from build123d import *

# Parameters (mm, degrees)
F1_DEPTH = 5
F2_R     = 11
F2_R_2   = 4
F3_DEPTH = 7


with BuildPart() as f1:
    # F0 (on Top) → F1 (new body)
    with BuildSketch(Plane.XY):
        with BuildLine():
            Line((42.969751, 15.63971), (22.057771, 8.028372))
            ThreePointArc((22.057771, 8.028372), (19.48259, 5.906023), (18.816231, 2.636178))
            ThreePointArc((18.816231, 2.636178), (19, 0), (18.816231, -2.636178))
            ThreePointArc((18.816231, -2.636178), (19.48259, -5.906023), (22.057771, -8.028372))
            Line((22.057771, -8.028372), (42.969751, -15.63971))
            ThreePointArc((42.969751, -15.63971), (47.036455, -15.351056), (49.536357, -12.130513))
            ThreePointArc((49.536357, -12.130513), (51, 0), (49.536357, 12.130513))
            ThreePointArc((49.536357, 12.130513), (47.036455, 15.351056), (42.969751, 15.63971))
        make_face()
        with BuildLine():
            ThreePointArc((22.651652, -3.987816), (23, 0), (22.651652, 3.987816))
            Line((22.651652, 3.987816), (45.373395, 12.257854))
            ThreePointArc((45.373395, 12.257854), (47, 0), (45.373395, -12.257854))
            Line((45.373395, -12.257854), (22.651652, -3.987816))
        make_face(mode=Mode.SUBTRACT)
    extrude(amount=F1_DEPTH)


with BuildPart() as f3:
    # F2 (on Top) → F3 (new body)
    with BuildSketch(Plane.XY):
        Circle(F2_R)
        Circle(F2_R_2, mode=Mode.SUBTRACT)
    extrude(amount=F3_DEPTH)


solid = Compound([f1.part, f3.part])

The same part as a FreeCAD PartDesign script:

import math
import FreeCAD as App
import Part
import Sketcher
from FreeCAD import Vector

doc = App.newDocument("Part")
body = doc.addObject("PartDesign::Body", "Body")

sketch1 = body.newObject("Sketcher::SketchObject", "Sketch")
sketch1.AttachmentSupport = (doc.getObject("XY_Plane"), [""])
sketch1.MapMode = "FlatFace"
sketch1.addGeometry(Part.LineSegment(Vector(42.969751, 15.63971, 0), Vector(22.057771, 8.028372, 0)), False)
sketch1.addGeometry(Part.ArcOfCircle(Part.Circle(Vector(23.767872, 3.329908, 0), Vector(0, 0, 1), 5.000001), math.radians(109.999997), math.radians(187.975289)), False)
sketch1.addGeometry(Part.ArcOfCircle(Part.Circle(Vector(0.000045, 0, 0), Vector(0, 0, 1), 18.999955), math.radians(-7.97532), math.radians(7.97532)), False)
sketch1.addGeometry(Part.ArcOfCircle(Part.Circle(Vector(23.767872, -3.329908, 0), Vector(0, 0, 1), 5.000001), math.radians(172.024711), math.radians(250.000003)), False)
sketch1.addGeometry(Part.LineSegment(Vector(22.057771, -8.028372, 0), Vector(42.969751, -15.63971, 0)), False)
sketch1.addGeometry(Part.ArcOfCircle(Part.Circle(Vector(44.679851, -10.941246, 0), Vector(0, 0, 1), 5.000001), math.radians(-109.99999), math.radians(-13.759878)), False)
sketch1.addGeometry(Part.ArcOfCircle(Part.Circle(Vector(-0.000004, 0, 0), Vector(0, 0, 1), 51.000004), math.radians(-13.759868), math.radians(13.759868)), False)
sketch1.addGeometry(Part.ArcOfCircle(Part.Circle(Vector(44.679851, 10.941246, 0), Vector(0, 0, 1), 5.000001), math.radians(13.759878), math.radians(109.99999)), False)
sketch1.addGeometry(Part.LineSegment(Vector(45.373395, -12.257854, 0), Vector(22.651652, -3.987816, 0)), False)
sketch1.addGeometry(Part.ArcOfCircle(Part.Circle(Vector(-0.000021, 0, 0), Vector(0, 0, 1), 23.000021), math.radians(-9.984581), math.radians(9.984581)), False)
sketch1.addGeometry(Part.LineSegment(Vector(22.651652, 3.987816, 0), Vector(45.373395, 12.257854, 0)), False)
sketch1.addGeometry(Part.ArcOfCircle(Part.Circle(Vector(0.000013, 0, 0), Vector(0, 0, 1), 46.999987), math.radians(-15.117862), math.radians(15.117862)), False)
sketch1.addConstraint(Sketcher.Constraint("Coincident", 0, 2, 1, 1))
sketch1.addConstraint(Sketcher.Constraint("Coincident", 1, 2, 2, 2))
sketch1.addConstraint(Sketcher.Constraint("Coincident", 2, 1, 3, 1))
sketch1.addConstraint(Sketcher.Constraint("Coincident", 3, 2, 4, 1))
sketch1.addConstraint(Sketcher.Constraint("Coincident", 4, 2, 5, 1))
sketch1.addConstraint(Sketcher.Constraint("Coincident", 5, 2, 6, 1))
sketch1.addConstraint(Sketcher.Constraint("Coincident", 6, 2, 7, 1))
sketch1.addConstraint(Sketcher.Constraint("Coincident", 7, 2, 0, 1))
sketch1.addConstraint(Sketcher.Constraint("Coincident", 8, 2, 9, 1))
sketch1.addConstraint(Sketcher.Constraint("Coincident", 9, 2, 10, 1))
sketch1.addConstraint(Sketcher.Constraint("Coincident", 10, 2, 11, 2))
sketch1.addConstraint(Sketcher.Constraint("Coincident", 11, 1, 8, 1))
sketch1.addConstraint(Sketcher.Constraint("Coincident", 6, 3, -1, 1))
sketch1.addConstraint(Sketcher.Constraint("PointOnObject", 2, 3, -1))
sketch1.addConstraint(Sketcher.Constraint("PointOnObject", 9, 3, -1))
sketch1.addConstraint(Sketcher.Constraint("PointOnObject", 11, 3, -1))
sketch1.addConstraint(Sketcher.Constraint("Radius", 1, 5.000001))
sketch1.addConstraint(Sketcher.Constraint("Radius", 3, 5.000001))
sketch1.addConstraint(Sketcher.Constraint("Radius", 5, 5.000001))
sketch1.addConstraint(Sketcher.Constraint("Radius", 7, 5.000001))
sketch1.addConstraint(Sketcher.Constraint("Radius", 9, 23.000021))
sketch1.addConstraint(Sketcher.Constraint("Radius", 2, 18.999955))
sketch1.addConstraint(Sketcher.Constraint("Radius", 6, 51.000004))
sketch1.addConstraint(Sketcher.Constraint("Radius", 11, 46.999987))
sketch1.addConstraint(Sketcher.Constraint("DistanceX", 0, 2, 1, 3, 1.710101))
sketch1.addConstraint(Sketcher.Constraint("DistanceX", 0, 2, 3, 3, 1.710101))
sketch1.addConstraint(Sketcher.Constraint("DistanceX", 3, 2, 3, 3, 1.710101))
sketch1.addConstraint(Sketcher.Constraint("DistanceX", 4, 2, 5, 3, 1.7101))
sketch1.addConstraint(Sketcher.Constraint("DistanceY", 4, 2, 3, 3, 12.309802))
sketch1.addConstraint(Sketcher.Constraint("DistanceX", 4, 2, 7, 3, 1.7101))
sketch1.addConstraint(Sketcher.Constraint("DistanceX", 7, 2, 7, 3, 1.7101))
sketch1.addConstraint(Sketcher.Constraint("DistanceY", 5, 3, 10, 2, 23.1991))
sketch1.addConstraint(Sketcher.Constraint("DistanceY", 11, 1, 7, 3, 23.1991))
sketch1.addConstraint(Sketcher.Constraint("DistanceX", -1, 1, 1, 3, 23.767872))
sketch1.addConstraint(Sketcher.Constraint("DistanceY", -1, 1, 1, 3, 3.329908))
sketch1.addConstraint(Sketcher.Constraint("DistanceX", -1, 1, 1, 2, 18.816231))
sketch1.addConstraint(Sketcher.Constraint("DistanceX", -1, 1, 2, 1, 18.816231))
sketch1.addConstraint(Sketcher.Constraint("DistanceX", -1, 1, 8, 2, 22.651652))
sketch1.addConstraint(Sketcher.Constraint("DistanceX", 11, 3, 1, 3, 23.767859))
sketch1.addConstraint(Sketcher.Constraint("DistanceY", 5, 2, 7, 3, 23.071759))
sketch1.addConstraint(Sketcher.Constraint("DistanceY", 5, 3, 6, 2, 23.071759))
sketch1.addConstraint(Sketcher.Constraint("DistanceX", 9, 2, 1, 3, 1.11622))
sketch1.addConstraint(Sketcher.Constraint("DistanceY", 1, 2, 9, 2, 1.351638))
pad1 = body.newObject("PartDesign::Pad", "Pad")
pad1.Profile = sketch1
pad1.Length = 5
body2 = doc.addObject("PartDesign::Body", "Body001")

sketch2 = body2.newObject("Sketcher::SketchObject", "Sketch001")
sketch2.AttachmentSupport = (doc.getObject("XY_Plane001"), [""])
sketch2.MapMode = "FlatFace"
sketch2.addGeometry(Part.Circle(Vector(0, 0, 0), Vector(0, 0, 1), 11), False)
sketch2.addGeometry(Part.Circle(Vector(0, 0, 0), Vector(0, 0, 1), 4), False)
sketch2.addConstraint(Sketcher.Constraint("Coincident", 0, 3, -1, 1))
sketch2.addConstraint(Sketcher.Constraint("Coincident", 1, 3, -1, 1))
sketch2.addConstraint(Sketcher.Constraint("Diameter", 0, 22.0))
sketch2.addConstraint(Sketcher.Constraint("Diameter", 1, 8.0))
pad2 = body2.newObject("PartDesign::Pad", "Pad001")
pad2.Profile = sketch2
pad2.Length = 7

doc.recompute()
